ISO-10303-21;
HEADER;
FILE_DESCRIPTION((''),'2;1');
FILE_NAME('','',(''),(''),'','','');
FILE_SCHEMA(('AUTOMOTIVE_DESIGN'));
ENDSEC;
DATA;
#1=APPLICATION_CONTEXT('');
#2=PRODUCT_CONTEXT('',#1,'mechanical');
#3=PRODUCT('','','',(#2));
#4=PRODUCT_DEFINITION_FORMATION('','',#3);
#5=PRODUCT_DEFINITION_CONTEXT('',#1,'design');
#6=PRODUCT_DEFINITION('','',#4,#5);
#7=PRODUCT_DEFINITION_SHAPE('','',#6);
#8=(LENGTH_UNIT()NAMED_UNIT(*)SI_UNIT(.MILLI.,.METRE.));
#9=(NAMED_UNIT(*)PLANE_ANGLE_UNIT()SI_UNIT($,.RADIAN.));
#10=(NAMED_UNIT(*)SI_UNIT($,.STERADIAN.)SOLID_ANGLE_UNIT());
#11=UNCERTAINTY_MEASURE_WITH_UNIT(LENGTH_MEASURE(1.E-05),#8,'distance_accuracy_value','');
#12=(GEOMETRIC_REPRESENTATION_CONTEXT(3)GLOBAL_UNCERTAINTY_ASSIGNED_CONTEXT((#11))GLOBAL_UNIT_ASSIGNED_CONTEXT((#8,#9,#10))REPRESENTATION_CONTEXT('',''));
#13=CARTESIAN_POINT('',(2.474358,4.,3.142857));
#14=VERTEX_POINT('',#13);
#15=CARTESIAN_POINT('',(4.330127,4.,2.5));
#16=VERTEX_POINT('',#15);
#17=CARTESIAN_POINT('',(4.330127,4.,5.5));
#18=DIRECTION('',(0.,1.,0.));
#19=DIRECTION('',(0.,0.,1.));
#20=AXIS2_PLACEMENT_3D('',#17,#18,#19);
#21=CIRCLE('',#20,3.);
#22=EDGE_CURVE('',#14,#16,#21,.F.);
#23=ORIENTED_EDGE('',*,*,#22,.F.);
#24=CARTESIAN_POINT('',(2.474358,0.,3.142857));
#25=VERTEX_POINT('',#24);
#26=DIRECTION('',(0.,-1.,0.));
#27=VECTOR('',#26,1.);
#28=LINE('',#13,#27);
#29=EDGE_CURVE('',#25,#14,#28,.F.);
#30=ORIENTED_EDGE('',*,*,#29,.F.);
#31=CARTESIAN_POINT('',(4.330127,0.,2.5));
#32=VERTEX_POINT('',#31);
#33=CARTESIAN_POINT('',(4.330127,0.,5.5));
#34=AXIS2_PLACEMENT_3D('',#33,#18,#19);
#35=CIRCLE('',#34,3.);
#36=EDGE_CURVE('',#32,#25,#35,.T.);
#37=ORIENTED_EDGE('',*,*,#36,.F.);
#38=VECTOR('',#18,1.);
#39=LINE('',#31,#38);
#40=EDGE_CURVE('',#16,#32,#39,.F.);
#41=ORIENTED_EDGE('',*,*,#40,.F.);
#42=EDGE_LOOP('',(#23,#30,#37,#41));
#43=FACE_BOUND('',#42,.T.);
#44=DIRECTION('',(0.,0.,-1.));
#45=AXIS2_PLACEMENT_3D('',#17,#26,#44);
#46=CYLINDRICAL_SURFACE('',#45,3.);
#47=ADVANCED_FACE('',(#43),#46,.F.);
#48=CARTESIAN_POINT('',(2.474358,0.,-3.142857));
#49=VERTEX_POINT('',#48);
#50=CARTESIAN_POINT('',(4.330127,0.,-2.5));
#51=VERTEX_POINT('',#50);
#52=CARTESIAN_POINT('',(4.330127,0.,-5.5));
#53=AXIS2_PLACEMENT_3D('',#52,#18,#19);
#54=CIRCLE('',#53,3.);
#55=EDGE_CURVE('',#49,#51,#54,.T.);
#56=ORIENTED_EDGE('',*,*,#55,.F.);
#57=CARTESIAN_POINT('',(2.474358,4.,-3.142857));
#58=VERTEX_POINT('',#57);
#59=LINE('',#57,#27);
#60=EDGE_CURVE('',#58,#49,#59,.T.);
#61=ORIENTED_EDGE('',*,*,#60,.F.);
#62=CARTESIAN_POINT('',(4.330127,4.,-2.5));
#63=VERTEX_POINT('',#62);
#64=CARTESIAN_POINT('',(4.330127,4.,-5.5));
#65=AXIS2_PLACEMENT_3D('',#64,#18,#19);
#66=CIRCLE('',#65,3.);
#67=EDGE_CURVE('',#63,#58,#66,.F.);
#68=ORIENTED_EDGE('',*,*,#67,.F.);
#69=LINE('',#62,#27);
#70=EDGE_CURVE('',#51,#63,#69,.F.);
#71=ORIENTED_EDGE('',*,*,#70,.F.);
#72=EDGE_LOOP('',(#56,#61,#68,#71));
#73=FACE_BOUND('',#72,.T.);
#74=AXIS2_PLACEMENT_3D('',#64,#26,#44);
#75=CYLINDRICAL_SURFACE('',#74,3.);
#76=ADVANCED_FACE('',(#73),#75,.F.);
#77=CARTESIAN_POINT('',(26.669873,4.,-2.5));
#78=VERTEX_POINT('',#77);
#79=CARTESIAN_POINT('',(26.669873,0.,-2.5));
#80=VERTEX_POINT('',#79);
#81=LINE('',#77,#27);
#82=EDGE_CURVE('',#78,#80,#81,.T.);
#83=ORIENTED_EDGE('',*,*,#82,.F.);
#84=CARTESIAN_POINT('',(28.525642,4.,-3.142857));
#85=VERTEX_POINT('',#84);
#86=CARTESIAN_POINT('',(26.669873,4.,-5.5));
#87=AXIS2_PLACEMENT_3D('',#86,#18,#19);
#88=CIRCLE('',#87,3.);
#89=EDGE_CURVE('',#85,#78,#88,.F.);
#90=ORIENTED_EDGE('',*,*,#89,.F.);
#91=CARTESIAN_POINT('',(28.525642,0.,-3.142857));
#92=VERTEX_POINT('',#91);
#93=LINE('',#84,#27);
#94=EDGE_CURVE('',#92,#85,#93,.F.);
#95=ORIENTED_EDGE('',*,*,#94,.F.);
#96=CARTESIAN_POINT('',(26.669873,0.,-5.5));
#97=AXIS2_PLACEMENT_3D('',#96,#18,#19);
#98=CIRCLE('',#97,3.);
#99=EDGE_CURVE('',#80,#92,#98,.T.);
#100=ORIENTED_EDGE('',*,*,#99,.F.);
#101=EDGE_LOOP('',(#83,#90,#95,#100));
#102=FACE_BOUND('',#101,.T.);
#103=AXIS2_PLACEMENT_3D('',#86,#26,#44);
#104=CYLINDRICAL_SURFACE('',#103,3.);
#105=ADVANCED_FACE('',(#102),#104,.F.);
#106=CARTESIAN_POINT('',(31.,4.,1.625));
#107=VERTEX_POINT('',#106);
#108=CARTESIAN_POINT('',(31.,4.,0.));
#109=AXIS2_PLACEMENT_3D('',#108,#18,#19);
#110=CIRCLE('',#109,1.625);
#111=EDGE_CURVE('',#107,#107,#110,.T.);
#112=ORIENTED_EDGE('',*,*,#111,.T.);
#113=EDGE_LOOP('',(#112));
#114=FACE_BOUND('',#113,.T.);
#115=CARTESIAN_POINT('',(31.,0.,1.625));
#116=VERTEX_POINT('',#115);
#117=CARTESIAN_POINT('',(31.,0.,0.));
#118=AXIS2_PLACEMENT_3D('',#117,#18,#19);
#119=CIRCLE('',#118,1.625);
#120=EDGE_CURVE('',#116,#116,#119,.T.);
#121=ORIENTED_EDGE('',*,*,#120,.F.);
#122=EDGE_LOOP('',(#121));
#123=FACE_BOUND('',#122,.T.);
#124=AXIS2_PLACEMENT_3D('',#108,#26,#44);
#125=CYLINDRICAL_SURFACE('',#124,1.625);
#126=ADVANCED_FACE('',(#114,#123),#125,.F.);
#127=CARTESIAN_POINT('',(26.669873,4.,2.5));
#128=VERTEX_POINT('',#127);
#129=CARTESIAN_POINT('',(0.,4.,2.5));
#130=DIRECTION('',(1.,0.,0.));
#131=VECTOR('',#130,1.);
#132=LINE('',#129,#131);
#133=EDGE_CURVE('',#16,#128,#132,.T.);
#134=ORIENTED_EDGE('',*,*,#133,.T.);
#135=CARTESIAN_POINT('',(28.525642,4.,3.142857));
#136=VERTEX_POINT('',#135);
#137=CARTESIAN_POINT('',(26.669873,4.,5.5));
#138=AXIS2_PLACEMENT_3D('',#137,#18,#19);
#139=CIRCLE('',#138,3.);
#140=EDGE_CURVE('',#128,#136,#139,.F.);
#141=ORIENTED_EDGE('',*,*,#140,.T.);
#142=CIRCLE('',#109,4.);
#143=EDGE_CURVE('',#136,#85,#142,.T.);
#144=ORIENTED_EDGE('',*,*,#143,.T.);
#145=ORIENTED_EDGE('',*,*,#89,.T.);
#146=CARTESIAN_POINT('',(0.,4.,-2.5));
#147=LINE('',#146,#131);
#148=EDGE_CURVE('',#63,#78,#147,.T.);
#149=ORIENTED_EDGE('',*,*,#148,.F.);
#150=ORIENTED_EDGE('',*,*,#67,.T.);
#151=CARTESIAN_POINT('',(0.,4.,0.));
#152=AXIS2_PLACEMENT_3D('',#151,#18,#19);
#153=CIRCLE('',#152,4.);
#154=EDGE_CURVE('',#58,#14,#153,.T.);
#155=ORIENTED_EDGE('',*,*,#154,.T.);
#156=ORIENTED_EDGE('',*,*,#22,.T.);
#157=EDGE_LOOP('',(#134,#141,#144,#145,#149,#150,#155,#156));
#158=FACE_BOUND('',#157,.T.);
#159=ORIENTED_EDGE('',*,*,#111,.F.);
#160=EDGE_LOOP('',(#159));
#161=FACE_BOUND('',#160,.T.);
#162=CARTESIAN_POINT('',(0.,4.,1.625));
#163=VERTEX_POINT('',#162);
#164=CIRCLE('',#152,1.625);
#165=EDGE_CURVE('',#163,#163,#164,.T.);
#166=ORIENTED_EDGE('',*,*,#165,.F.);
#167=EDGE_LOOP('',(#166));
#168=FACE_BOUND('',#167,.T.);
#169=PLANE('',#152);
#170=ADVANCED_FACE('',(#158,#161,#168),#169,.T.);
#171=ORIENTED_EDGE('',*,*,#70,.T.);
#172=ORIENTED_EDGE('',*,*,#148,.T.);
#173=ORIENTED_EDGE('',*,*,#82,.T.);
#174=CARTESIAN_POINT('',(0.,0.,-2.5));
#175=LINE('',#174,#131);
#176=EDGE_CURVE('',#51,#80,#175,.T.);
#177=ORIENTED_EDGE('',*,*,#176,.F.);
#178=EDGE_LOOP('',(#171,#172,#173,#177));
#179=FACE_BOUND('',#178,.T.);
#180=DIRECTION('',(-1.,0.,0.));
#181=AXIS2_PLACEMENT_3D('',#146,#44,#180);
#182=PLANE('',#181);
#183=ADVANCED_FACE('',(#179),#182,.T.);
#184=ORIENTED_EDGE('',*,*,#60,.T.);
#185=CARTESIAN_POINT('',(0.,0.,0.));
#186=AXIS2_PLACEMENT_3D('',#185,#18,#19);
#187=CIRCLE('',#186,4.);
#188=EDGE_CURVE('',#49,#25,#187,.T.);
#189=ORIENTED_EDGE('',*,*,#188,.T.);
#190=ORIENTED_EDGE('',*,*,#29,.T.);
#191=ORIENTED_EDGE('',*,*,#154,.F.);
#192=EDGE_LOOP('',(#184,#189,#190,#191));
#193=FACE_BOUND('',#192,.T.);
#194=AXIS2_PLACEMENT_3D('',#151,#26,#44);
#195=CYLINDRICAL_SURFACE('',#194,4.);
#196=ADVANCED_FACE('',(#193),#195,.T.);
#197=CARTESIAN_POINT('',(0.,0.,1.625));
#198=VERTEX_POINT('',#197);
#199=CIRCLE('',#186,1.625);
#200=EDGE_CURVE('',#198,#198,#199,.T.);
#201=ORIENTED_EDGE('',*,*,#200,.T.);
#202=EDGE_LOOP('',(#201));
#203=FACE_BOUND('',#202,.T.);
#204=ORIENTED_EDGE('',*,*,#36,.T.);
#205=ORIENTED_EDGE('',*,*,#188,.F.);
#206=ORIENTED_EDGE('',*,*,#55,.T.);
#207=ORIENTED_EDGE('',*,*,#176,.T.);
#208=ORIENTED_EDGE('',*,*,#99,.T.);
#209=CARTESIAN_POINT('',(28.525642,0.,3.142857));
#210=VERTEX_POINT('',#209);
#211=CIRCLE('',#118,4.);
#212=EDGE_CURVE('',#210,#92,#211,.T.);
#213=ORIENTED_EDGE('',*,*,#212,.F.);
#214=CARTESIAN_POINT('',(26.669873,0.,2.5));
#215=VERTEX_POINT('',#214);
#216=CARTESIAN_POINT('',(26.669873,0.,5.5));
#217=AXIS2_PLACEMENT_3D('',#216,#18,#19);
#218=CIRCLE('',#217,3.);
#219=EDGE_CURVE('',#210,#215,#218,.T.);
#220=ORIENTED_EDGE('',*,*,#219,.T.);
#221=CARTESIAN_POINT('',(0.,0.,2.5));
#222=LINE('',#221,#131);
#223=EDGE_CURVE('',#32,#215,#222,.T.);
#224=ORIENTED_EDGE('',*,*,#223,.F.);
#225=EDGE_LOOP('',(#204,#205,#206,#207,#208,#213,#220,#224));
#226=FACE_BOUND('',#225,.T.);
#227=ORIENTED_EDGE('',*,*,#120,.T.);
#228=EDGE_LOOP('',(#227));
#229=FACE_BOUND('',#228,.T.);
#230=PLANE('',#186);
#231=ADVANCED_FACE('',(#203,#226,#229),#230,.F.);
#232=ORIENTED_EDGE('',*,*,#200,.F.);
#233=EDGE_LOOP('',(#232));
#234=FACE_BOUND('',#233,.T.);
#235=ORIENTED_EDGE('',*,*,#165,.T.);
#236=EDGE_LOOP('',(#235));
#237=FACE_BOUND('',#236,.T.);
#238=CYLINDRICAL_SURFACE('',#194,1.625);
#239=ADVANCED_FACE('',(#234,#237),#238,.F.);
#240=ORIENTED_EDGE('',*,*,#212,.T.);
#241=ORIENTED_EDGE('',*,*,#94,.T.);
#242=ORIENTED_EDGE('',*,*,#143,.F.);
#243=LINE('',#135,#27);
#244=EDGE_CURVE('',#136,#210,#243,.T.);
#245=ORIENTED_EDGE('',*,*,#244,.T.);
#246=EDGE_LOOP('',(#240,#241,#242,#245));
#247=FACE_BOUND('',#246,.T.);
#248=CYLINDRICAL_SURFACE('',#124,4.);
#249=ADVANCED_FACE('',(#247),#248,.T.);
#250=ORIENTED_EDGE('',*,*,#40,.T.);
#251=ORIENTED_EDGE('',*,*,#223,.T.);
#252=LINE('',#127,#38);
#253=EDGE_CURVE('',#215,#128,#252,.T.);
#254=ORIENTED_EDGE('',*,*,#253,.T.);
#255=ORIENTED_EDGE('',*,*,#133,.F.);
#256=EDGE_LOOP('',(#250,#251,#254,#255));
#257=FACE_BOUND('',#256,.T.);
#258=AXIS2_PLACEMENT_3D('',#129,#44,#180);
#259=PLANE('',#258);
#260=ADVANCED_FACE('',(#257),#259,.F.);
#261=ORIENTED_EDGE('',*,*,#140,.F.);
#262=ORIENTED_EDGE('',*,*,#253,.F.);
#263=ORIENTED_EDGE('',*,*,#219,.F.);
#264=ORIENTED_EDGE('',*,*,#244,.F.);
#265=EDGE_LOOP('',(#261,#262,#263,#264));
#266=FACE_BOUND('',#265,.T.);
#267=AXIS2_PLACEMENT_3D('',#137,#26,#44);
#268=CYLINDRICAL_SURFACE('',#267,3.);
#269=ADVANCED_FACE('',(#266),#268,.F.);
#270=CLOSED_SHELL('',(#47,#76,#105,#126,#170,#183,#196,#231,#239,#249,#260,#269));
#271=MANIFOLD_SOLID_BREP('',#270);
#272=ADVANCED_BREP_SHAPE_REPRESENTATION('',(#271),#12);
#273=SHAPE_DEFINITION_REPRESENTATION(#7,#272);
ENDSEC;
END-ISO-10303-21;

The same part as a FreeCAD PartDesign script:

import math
import FreeCAD as App
import Part
import Sketcher

V = App.Vector
Q = App.Units.Quantity


def edges_at(feature, points):
    """Names of the edges that pass closest to the given points."""
    edges = feature.Shape.Edges
    near = lambda p: min(range(len(edges)), key=lambda i: edges[i].distToShape(Part.Vertex(*p))[0])
    return sorted({f"Edge{near(p) + 1}" for p in points})

doc = App.newDocument("Part")
params = doc.addObject("Spreadsheet::Sheet", "Params")
for row, (alias, value) in enumerate([
    ("sketch1_radius", "4 mm"),
    ("sketch1_diameter", "3.25 mm"),
    ("pad1_length", "4 mm"),
    ("fillet_radius", "3 mm"),
], start=1):
    params.set(f"A{row}", alias)
    params.set(f"B{row}", "=" + value)
    params.setAlias(f"B{row}", alias)

body = doc.addObject("PartDesign::Body", "Body")

# Sketch on XZ plane
sketch1 = body.newObject("Sketcher::SketchObject", "Sketch")
sketch1.AttachmentSupport = (doc.getObject("XZ_Plane"), [""])
sketch1.MapMode = "FlatFace"
sketch1.addGeometry(Part.ArcOfCircle(Part.Circle(V(0, 0, 0), V(0, 0, 1), 4), math.radians(39), math.radians(321)), False)
sketch1.addGeometry(Part.LineSegment(V(3.1, 2.5, 0), V(27.9, 2.5, 0)), False)
sketch1.addGeometry(Part.ArcOfCircle(Part.Circle(V(31, 0, 0), V(0, 0, 1), 4), math.radians(-141), math.radians(141)), False)
sketch1.addGeometry(Part.LineSegment(V(27.9, -2.5, 0), V(3.1, -2.5, 0)), False)
sketch1.addGeometry(Part.Circle(V(0, 0, 0), V(0, 0, 1), 1.6), False)
sketch1.addGeometry(Part.Circle(V(31, 0, 0), V(0, 0, 1), 1.6), False)
sketch1.addConstraint(Sketcher.Constraint("Coincident", 0, 1, 1, 1))
sketch1.addConstraint(Sketcher.Constraint("Coincident", 1, 2, 2, 2))
sketch1.addConstraint(Sketcher.Constraint("Coincident", 2, 1, 3, 1))
sketch1.addConstraint(Sketcher.Constraint("Coincident", 3, 2, 0, 2))
sketch1.addConstraint(Sketcher.Constraint("Horizontal", 1))
sketch1.addConstraint(Sketcher.Constraint("Horizontal", 3))
sketch1.addConstraint(Sketcher.Constraint("Coincident", 0, 3, -1, 1))
sketch1.addConstraint(Sketcher.Constraint("Coincident", 4, 3, -1, 1))
sketch1.addConstraint(Sketcher.Constraint("Coincident", 5, 3, 2, 3))
sketch1.addConstraint(Sketcher.Constraint("Equal", 0, 2))
sketch1.addConstraint(Sketcher.Constraint("Equal", 4, 5))
sketch1.addConstraint(Sketcher.Constraint("Symmetric", 1, 2, 2, 1, -1))
sketch1.addConstraint(Sketcher.Constraint("Radius", 0, Q("4 mm")))
sketch1.addConstraint(Sketcher.Constraint("Diameter", 4, Q("3.25 mm")))
sketch1.addConstraint(Sketcher.Constraint("DistanceX", -1, 1, 2, 3, Q("31 mm")))
sketch1.addConstraint(Sketcher.Constraint("DistanceY", 2, 1, 1, 2, Q("5 mm")))
sketch1.setExpression("Constraints[12]", "Params.sketch1_radius")
sketch1.setExpression("Constraints[13]", "Params.sketch1_diameter")
pad1 = body.newObject("PartDesign::Pad", "Pad")
pad1.Profile = sketch1
pad1.setExpression("Length", "Params.pad1_length")
pad1.Reversed = True
doc.recompute()

fillet = body.newObject("PartDesign::Fillet", "Fillet")
fillet.Base = (pad1, edges_at(pad1, [
    (27.878, 2, 2.5),
    (3.122, 2, 2.5),
    (3.122, 2, -2.5),
    (27.878, 2, -2.5),
]))
fillet.setExpression("Radius", "Params.fillet_radius")

doc.recompute()
